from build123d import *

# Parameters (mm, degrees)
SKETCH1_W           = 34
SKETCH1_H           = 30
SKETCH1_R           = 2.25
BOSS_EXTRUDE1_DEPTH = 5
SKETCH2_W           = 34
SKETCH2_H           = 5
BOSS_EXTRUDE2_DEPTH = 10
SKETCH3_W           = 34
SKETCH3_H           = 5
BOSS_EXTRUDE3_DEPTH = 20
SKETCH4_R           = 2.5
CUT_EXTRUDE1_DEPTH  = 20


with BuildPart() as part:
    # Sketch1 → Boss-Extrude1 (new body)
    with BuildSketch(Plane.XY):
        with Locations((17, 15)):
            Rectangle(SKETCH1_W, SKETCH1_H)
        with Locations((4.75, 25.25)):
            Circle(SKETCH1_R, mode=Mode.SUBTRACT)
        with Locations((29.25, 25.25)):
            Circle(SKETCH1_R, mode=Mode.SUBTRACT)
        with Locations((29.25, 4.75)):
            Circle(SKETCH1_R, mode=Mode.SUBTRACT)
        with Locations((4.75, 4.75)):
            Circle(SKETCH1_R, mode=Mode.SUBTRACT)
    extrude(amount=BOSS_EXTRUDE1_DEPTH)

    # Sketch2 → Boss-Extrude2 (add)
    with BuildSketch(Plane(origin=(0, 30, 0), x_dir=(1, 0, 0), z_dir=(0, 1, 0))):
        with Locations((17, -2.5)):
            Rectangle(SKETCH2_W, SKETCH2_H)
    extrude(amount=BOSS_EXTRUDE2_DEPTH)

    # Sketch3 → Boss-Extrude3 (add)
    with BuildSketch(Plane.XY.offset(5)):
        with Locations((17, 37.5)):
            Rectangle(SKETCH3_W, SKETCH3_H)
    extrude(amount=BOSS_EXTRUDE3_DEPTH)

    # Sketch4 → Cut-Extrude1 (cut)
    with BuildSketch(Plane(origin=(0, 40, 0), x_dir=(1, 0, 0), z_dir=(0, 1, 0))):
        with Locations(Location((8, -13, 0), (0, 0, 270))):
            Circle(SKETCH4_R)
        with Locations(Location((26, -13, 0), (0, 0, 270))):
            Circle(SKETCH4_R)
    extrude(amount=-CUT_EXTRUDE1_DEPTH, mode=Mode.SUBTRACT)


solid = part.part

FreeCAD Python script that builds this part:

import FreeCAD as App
import Part
import Sketcher

V = App.Vector
Q = App.Units.Quantity


def add_polygon(sketch, points):
    """Adds a closed chain of lines whose ends are joined by coincident constraints."""
    first, n = sketch.GeometryCount, len(points)
    for a, b in zip(points, points[1:] + points[:1]):
        sketch.addGeometry(Part.LineSegment(App.Vector(*a, 0), App.Vector(*b, 0)), False)
    for i in range(n):
        sketch.addConstraint(Sketcher.Constraint("Coincident", first + i, 2, first + (i + 1) % n, 1))

doc = App.newDocument("Part")
body = doc.addObject("PartDesign::Body", "Body")

# Sketch on XY plane
sketch1 = body.newObject("Sketcher::SketchObject", "Sketch")
sketch1.AttachmentSupport = (doc.getObject("XY_Plane"), [""])
sketch1.MapMode = "FlatFace"
add_polygon(sketch1, [(0, 30), (0, 0), (34, 0), (34, 30)])  # lines 0-3
sketch1.addGeometry(Part.Circle(V(4.8, 4.8, 0), V(0, 0, 1), 2.2), False)  # 4
sketch1.addGeometry(Part.Circle(V(29.2, 4.8, 0), V(0, 0, 1), 2.2), False)  # 5
sketch1.addGeometry(Part.Circle(V(4.8, 25.2, 0), V(0, 0, 1), 2.2), False)  # 6
sketch1.addGeometry(Part.Circle(V(29.2, 25.2, 0), V(0, 0, 1), 2.2), False)  # 7
sketch1.addConstraint([
    Sketcher.Constraint("Vertical", 0),
    Sketcher.Constraint("Horizontal", 1),
    Sketcher.Constraint("Vertical", 2),
    Sketcher.Constraint("Horizontal", 3),
    Sketcher.Constraint("Coincident", 0, 2, -1, 1),
    Sketcher.Constraint("Equal", 4, 5),
    Sketcher.Constraint("Equal", 5, 6),
    Sketcher.Constraint("Equal", 6, 7),
    Sketcher.Constraint("Horizontal", 4, 3, 5, 3),
    Sketcher.Constraint("Horizontal", 6, 3, 7, 3),
    Sketcher.Constraint("Vertical", 4, 3, 6, 3),
    Sketcher.Constraint("Vertical", 5, 3, 7, 3),
    Sketcher.Constraint("Diameter", 4, Q("4.5 mm")),
    Sketcher.Constraint("DistanceX", 1, 1, 1, 2, Q("34 mm")),
    Sketcher.Constraint("DistanceY", 0, 2, 0, 1, Q("30 mm")),
    Sketcher.Constraint("DistanceX", 4, 3, 5, 3, Q("24.5 mm")),
    Sketcher.Constraint("DistanceY", 4, 3, 6, 3, Q("20.5 mm")),
    Sketcher.Constraint("DistanceX", -1, 1, 4, 3, Q("4.75 mm")),
    Sketcher.Constraint("DistanceY", -1, 1, 4, 3, Q("4.75 mm")),
])
pad1 = body.newObject("PartDesign::Pad", "Pad")
pad1.Profile = sketch1
pad1.Length = 5

# Sketch on XZ plane
sketch2 = body.newObject("Sketcher::SketchObject", "Sketch001")
sketch2.AttachmentSupport = (doc.getObject("XZ_Plane"), [""])
sketch2.MapMode = "FlatFace"
sketch2.AttachmentOffset = App.Placement(V(0, 0, -30), App.Rotation())
add_polygon(sketch2, [(0, 0), (0, 5), (34, 5), (34, 0)])  # lines 0-3
sketch2.addConstraint([
    Sketcher.Constraint("Vertical", 0),
    Sketcher.Constraint("Horizontal", 1),
    Sketcher.Constraint("Vertical", 2),
    Sketcher.Constraint("Horizontal", 3),
    Sketcher.Constraint("Coincident", 3, 2, -1, 1),
    Sketcher.Constraint("DistanceX", 1, 1, 1, 2, Q("34 mm")),
    Sketcher.Constraint("DistanceY", 0, 1, 0, 2, Q("5 mm")),
])
pad2 = body.newObject("PartDesign::Pad", "Pad001")
pad2.Profile = sketch2
pad2.Length = 10
pad2.Reversed = True

# Sketch on XY plane
sketch3 = body.newObject("Sketcher::SketchObject", "Sketch002")
sketch3.AttachmentSupport = (doc.getObject("XY_Plane"), [""])
sketch3.MapMode = "FlatFace"
sketch3.AttachmentOffset = App.Placement(V(0, 0, 5), App.Rotation())
add_polygon(sketch3, [(0, 40), (0, 35), (34, 35), (34, 40)])  # lines 0-3
sketch3.addConstraint([
    Sketcher.Constraint("Vertical", 0),
    Sketcher.Constraint("Horizontal", 1),
    Sketcher.Constraint("Vertical", 2),
    Sketcher.Constraint("Horizontal", 3),
    Sketcher.Constraint("PointOnObject", 0, 2, -2),
    Sketcher.Constraint("DistanceX", 1, 1, 1, 2, Q("34 mm")),
    Sketcher.Constraint("DistanceY", 0, 2, 0, 1, Q("5 mm")),
    Sketcher.Constraint("DistanceY", -1, 1, 0, 2, Q("35 mm")),
])
pad3 = body.newObject("PartDesign::Pad", "Pad002")
pad3.Profile = sketch3
pad3.Length = 20

# Sketch on XZ plane
sketch4 = body.newObject("Sketcher::SketchObject", "Sketch003")
sketch4.AttachmentSupport = (doc.getObject("XZ_Plane"), [""])
sketch4.MapMode = "FlatFace"
sketch4.AttachmentOffset = App.Placement(V(0, 0, -40), App.Rotation())
sketch4.addGeometry([
    Part.Circle(V(8, 13, 0), V(0, 0, 1), 2.5),
    Part.Circle(V(26, 13, 0), V(0, 0, 1), 2.5),
], False)
sketch4.addConstraint([
    Sketcher.Constraint("Equal", 0, 1),
    Sketcher.Constraint("Horizontal", 0, 3, 1, 3),
    Sketcher.Constraint("Diameter", 0, Q("5 mm")),
    Sketcher.Constraint("DistanceX", -1, 1, 0, 3, Q("8 mm")),
    Sketcher.Constraint("DistanceY", -1, 1, 0, 3, Q("13 mm")),
    Sketcher.Constraint("DistanceX", -1, 1, 1, 3, Q("26 mm")),
])
pocket1 = body.newObject("PartDesign::Pocket", "Pocket")
pocket1.Profile = sketch4
pocket1.Length = 20
pocket1.Reversed = True

doc.recompute()
